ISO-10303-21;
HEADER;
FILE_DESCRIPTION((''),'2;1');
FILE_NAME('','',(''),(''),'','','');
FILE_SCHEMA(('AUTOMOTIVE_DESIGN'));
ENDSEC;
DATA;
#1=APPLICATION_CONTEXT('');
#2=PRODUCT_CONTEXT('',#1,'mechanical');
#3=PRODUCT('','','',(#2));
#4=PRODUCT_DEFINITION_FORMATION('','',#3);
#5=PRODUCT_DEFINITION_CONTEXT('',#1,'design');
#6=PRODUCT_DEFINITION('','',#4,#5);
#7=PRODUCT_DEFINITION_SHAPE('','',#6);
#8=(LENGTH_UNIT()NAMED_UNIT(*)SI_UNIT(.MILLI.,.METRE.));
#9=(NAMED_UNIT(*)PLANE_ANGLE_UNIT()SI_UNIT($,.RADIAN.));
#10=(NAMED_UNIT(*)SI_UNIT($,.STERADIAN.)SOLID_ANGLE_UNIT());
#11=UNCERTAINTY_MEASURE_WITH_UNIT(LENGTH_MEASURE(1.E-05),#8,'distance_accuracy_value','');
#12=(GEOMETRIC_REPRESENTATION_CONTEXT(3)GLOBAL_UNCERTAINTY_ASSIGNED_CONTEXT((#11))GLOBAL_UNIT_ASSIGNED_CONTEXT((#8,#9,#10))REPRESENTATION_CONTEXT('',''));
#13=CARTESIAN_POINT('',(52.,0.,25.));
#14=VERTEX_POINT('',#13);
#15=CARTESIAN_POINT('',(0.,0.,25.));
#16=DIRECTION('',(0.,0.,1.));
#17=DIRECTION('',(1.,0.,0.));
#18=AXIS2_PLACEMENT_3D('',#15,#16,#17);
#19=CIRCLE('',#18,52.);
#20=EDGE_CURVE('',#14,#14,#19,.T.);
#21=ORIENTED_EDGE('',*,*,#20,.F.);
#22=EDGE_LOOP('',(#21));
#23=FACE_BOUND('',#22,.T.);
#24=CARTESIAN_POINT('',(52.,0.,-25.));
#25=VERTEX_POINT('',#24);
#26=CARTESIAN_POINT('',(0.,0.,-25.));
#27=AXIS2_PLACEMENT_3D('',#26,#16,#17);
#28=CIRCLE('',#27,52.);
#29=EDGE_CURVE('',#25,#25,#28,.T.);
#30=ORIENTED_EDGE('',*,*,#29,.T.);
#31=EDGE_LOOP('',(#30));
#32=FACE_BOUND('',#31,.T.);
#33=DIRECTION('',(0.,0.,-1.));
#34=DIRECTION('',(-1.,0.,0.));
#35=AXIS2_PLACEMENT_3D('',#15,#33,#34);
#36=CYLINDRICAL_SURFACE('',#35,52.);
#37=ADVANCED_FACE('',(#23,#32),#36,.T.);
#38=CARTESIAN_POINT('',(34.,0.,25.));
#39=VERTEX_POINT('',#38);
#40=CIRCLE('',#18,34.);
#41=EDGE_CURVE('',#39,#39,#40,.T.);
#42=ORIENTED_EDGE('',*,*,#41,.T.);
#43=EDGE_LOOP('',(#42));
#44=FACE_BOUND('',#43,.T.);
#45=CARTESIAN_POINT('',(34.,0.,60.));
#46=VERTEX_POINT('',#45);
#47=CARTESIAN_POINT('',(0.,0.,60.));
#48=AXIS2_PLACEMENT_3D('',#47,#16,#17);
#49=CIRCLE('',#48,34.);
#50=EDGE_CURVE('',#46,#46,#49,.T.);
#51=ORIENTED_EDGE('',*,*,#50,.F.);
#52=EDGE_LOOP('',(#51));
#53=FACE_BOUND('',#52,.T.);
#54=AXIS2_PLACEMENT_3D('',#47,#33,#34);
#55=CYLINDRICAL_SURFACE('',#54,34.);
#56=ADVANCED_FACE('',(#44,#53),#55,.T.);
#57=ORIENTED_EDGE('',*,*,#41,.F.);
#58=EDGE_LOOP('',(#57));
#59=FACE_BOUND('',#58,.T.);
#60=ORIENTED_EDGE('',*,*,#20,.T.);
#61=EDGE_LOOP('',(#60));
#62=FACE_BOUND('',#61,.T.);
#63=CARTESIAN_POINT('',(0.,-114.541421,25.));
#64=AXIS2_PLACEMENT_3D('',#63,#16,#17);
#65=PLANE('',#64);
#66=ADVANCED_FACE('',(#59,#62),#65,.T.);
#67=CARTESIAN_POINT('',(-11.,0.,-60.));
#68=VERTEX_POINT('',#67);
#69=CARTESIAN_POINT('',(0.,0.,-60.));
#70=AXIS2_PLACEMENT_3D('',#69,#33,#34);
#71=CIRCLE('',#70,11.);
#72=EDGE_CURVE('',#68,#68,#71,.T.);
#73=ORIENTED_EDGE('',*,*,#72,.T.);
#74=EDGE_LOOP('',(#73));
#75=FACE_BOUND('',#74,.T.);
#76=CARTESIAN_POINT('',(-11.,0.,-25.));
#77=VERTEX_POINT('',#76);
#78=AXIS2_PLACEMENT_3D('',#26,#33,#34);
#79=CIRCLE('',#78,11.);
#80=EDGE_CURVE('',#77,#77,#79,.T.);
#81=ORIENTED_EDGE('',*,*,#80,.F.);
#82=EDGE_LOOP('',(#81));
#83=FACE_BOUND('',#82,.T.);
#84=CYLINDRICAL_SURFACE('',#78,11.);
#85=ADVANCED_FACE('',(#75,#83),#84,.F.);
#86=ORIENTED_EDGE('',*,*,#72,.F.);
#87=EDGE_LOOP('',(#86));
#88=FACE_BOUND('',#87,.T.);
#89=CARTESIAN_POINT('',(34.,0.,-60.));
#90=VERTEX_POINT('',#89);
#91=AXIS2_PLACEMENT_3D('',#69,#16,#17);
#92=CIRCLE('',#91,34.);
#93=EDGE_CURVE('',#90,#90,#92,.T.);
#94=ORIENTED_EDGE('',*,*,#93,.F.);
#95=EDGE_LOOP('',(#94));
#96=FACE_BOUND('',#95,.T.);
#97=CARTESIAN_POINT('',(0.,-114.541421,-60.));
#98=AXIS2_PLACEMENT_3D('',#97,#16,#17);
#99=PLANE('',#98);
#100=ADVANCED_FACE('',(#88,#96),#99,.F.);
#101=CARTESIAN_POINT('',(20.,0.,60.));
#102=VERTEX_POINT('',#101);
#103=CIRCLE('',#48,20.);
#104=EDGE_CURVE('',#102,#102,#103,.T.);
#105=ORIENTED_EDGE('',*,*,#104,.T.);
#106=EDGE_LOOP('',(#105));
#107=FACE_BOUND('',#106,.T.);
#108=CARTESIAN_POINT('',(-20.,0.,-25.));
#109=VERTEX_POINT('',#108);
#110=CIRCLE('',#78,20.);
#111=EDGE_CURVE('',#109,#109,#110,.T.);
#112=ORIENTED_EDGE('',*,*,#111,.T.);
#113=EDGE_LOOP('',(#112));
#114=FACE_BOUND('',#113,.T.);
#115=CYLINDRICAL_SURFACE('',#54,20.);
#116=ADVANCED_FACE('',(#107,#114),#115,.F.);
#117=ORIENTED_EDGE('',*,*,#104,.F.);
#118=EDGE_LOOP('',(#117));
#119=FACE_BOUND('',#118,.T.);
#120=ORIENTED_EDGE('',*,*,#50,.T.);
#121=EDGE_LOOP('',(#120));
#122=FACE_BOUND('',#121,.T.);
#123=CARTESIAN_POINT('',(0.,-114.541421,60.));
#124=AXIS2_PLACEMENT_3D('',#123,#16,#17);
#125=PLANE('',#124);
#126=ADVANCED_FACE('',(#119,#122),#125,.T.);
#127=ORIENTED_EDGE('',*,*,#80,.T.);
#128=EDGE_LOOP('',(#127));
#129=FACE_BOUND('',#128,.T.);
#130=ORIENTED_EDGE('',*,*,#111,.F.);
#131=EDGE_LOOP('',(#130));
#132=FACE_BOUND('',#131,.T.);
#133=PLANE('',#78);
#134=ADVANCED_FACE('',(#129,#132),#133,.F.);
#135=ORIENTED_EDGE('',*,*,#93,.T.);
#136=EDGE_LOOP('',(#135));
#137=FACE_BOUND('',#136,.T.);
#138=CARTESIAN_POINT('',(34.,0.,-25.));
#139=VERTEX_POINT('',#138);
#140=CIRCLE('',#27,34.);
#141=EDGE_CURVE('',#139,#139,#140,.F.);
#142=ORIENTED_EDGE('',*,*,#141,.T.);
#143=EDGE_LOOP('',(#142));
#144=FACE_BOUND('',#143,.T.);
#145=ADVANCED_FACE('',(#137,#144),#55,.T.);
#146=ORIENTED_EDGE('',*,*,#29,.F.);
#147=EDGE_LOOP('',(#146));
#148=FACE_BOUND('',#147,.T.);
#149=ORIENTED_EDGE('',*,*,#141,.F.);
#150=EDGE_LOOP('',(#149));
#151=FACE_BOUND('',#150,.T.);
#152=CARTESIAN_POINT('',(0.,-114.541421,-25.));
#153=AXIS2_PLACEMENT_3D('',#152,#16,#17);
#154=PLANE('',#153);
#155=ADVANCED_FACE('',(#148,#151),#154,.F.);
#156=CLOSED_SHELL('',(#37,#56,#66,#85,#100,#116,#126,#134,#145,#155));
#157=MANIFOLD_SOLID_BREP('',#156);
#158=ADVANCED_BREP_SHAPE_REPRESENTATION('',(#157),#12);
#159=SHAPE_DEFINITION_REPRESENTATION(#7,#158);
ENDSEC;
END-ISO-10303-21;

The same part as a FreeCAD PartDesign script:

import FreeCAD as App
import Part
import Sketcher

V = App.Vector

doc = App.newDocument("Part")
body = doc.addObject("PartDesign::Body", "Body")

# Sketch on XY plane
sketch1 = body.newObject("Sketcher::SketchObject", "Sketch")
sketch1.AttachmentSupport = (doc.getObject("XY_Plane"), [""])
sketch1.MapMode = "FlatFace"
sketch1.addGeometry([
    Part.Circle(V(0, 0, 0), V(0, 0, 1), 52),
    Part.Circle(V(0, 0, 0), V(0, 0, 1), 34),
], False)
sketch1.addConstraint([
    Sketcher.Constraint("Coincident", 0, 3, -1, 1),
    Sketcher.Constraint("Coincident", 1, 3, -1, 1),
    Sketcher.Constraint("Diameter", 0, 104.0),
    Sketcher.Constraint("Diameter", 1, 68.0),
])
pad1 = body.newObject("PartDesign::Pad", "Pad")
pad1.Profile = sketch1
pad1.Length = 50
pad1.Midplane = True

# Sketch on XY plane
sketch2 = body.newObject("Sketcher::SketchObject", "Sketch001")
sketch2.AttachmentSupport = (doc.getObject("XY_Plane"), [""])
sketch2.MapMode = "FlatFace"
sketch2.addGeometry([
    Part.Circle(V(0, 0, 0), V(0, 0, 1), 34),
    Part.Circle(V(0, 0, 0), V(0, 0, 1), 20),
], False)
sketch2.addConstraint([
    Sketcher.Constraint("Coincident", 0, 3, -1, 1),
    Sketcher.Constraint("Coincident", 1, 3, -1, 1),
    Sketcher.Constraint("Diameter", 0, 68.0),
    Sketcher.Constraint("Diameter", 1, 40.0),
])
pad2 = body.newObject("PartDesign::Pad", "Pad001")
pad2.Profile = sketch2
pad2.Length = 120
pad2.Midplane = True

# Sketch on XY plane
sketch3 = body.newObject("Sketcher::SketchObject", "Sketch002")
sketch3.AttachmentSupport = (doc.getObject("XY_Plane"), [""])
sketch3.MapMode = "FlatFace"
sketch3.AttachmentOffset = App.Placement(V(0, 0, -60), App.Rotation())
sketch3.addGeometry([
    Part.Circle(V(0, 0, 0), V(0, 0, 1), 20),
    Part.Circle(V(0, 0, 0), V(0, 0, 1), 11),
], False)
sketch3.addConstraint([
    Sketcher.Constraint("Coincident", 0, 3, -1, 1),
    Sketcher.Constraint("Coincident", 1, 3, -1, 1),
    Sketcher.Constraint("Diameter", 0, 40.0),
    Sketcher.Constraint("Diameter", 1, 22.0),
])
pad3 = body.newObject("PartDesign::Pad", "Pad002")
pad3.Profile = sketch3
pad3.Length = 35

doc.recompute()
